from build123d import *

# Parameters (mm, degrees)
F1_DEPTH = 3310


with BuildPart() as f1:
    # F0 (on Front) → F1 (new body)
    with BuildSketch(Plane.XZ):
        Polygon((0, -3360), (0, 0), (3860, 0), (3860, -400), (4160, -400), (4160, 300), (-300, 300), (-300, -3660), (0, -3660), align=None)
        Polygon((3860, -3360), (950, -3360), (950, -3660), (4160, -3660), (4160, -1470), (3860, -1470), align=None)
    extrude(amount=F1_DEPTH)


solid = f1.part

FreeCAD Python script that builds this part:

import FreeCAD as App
import Part
import Sketcher

V = App.Vector
Q = App.Units.Quantity

doc = App.newDocument("Part")
body = doc.addObject("PartDesign::Body", "Body")
body.AllowCompound = True

# Sketch on XZ plane
sketch1 = body.newObject("Sketcher::SketchObject", "Sketch")
sketch1.AttachmentSupport = (doc.getObject("XZ_Plane"), [""])
sketch1.MapMode = "FlatFace"
sketch1.addGeometry([
    Part.LineSegment(V(0, 0, 0), V(3860, 0, 0)),  # 0
    Part.LineSegment(V(3860, 0, 0), V(3860, -400, 0)),  # 1
    Part.LineSegment(V(3860, -400, 0), V(4160, -400, 0)),  # 2
    Part.LineSegment(V(4160, -400, 0), V(4160, 300, 0)),  # 3
    Part.LineSegment(V(4160, 300, 0), V(-300, 300, 0)),  # 4
    Part.LineSegment(V(-300, 300, 0), V(-300, -3660, 0)),  # 5
    Part.LineSegment(V(-300, -3660, 0), V(0, -3660, 0)),  # 6
    Part.LineSegment(V(0, -3660, 0), V(0, 0, 0)),  # 7
    Part.LineSegment(V(3860, -3360, 0), V(950, -3360, 0)),  # 8
    Part.LineSegment(V(950, -3360, 0), V(950, -3660, 0)),  # 9
    Part.LineSegment(V(950, -3660, 0), V(4160, -3660, 0)),  # 10
    Part.LineSegment(V(4160, -3660, 0), V(4160, -1470, 0)),  # 11
    Part.LineSegment(V(4160, -1470, 0), V(3860, -1470, 0)),  # 12
    Part.LineSegment(V(3860, -1470, 0), V(3860, -3360, 0)),  # 13
], False)
sketch1.addConstraint([
    Sketcher.Constraint("Coincident", 0, 2, 1, 1),
    Sketcher.Constraint("Coincident", 1, 2, 2, 1),
    Sketcher.Constraint("Coincident", 2, 2, 3, 1),
    Sketcher.Constraint("Coincident", 3, 2, 4, 1),
    Sketcher.Constraint("Coincident", 4, 2, 5, 1),
    Sketcher.Constraint("Coincident", 5, 2, 6, 1),
    Sketcher.Constraint("Coincident", 6, 2, 7, 1),
    Sketcher.Constraint("Coincident", 7, 2, 0, 1),
    Sketcher.Constraint("Coincident", 8, 2, 9, 1),
    Sketcher.Constraint("Coincident", 9, 2, 10, 1),
    Sketcher.Constraint("Coincident", 10, 2, 11, 1),
    Sketcher.Constraint("Coincident", 11, 2, 12, 1),
    Sketcher.Constraint("Coincident", 12, 2, 13, 1),
    Sketcher.Constraint("Coincident", 13, 2, 8, 1),
    Sketcher.Constraint("Horizontal", 0),
    Sketcher.Constraint("Vertical", 1),
    Sketcher.Constraint("Horizontal", 2),
    Sketcher.Constraint("Vertical", 3),
    Sketcher.Constraint("Horizontal", 4),
    Sketcher.Constraint("Vertical", 5),
    Sketcher.Constraint("Horizontal", 6),
    Sketcher.Constraint("Vertical", 7),
    Sketcher.Constraint("Horizontal", 8),
    Sketcher.Constraint("Vertical", 9),
    Sketcher.Constraint("Horizontal", 10),
    Sketcher.Constraint("Vertical", 11),
    Sketcher.Constraint("Horizontal", 12),
    Sketcher.Constraint("Vertical", 13),
    Sketcher.Constraint("Coincident", 7, 2, -1, 1),
    Sketcher.Constraint("Horizontal", 6, 2, 9, 2),
    Sketcher.Constraint("Vertical", 3, 2, 10, 2),
    Sketcher.Constraint("Vertical", 1, 2, 12, 2),
    Sketcher.Constraint("Equal", 2, 6),
    Sketcher.Constraint("Equal", 12, 9),
    Sketcher.Constraint("DistanceX", 0, 1, 0, 2, Q("3860 mm")),
    Sketcher.Constraint("DistanceX", 2, 1, 2, 2, Q("300 mm")),
    Sketcher.Constraint("DistanceX", 8, 2, 8, 1, Q("2910 mm")),
    Sketcher.Constraint("DistanceY", 1, 2, 1, 1, Q("400 mm")),
    Sketcher.Constraint("DistanceY", 3, 1, 3, 2, Q("700 mm")),
    Sketcher.Constraint("DistanceY", 5, 2, 5, 1, Q("3960 mm")),
    Sketcher.Constraint("DistanceY", 11, 1, 11, 2, Q("2190 mm")),
])
pad1 = body.newObject("PartDesign::Pad", "Pad")
pad1.Profile = sketch1
pad1.Length = 3310

doc.recompute()
